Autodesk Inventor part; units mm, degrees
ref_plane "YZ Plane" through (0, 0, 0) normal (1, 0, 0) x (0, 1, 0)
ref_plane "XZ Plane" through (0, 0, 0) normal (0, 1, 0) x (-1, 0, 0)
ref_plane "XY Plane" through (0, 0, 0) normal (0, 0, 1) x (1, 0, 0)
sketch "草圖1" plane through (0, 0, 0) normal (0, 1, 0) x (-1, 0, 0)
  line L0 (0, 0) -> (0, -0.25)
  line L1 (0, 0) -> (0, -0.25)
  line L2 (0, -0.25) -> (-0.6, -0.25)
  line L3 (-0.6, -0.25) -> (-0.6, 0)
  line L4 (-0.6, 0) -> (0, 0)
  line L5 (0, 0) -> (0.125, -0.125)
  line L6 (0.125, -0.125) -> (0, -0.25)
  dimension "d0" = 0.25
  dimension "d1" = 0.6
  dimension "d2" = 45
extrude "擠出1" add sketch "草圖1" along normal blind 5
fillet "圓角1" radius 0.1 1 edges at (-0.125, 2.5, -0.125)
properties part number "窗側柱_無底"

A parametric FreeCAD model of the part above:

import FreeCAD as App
import Part
import Sketcher
from FreeCAD import Vector


def edges_at(feature, points):
    """Names of the edges that pass closest to the given points."""
    edges = feature.Shape.Edges
    near = lambda p: min(range(len(edges)), key=lambda i: edges[i].distToShape(Part.Vertex(*p))[0])
    return sorted({f"Edge{near(p) + 1}" for p in points})


def add_polygon(sketch, points):
    """Adds a closed chain of lines whose ends are joined by coincident constraints."""
    first, n = sketch.GeometryCount, len(points)
    for a, b in zip(points, points[1:] + points[:1]):
        sketch.addGeometry(Part.LineSegment(App.Vector(*a, 0), App.Vector(*b, 0)), False)
    for i in range(n):
        sketch.addConstraint(Sketcher.Constraint("Coincident", first + i, 2, first + (i + 1) % n, 1))

doc = App.newDocument("Part")
params = doc.addObject("Spreadsheet::Sheet", "Params")
for row, (alias, value) in enumerate([
    ("sketch1_width", "0.6 mm"),
    ("sketch1_height", "0.25 mm"),
    ("pad1_length", "5 mm"),
    ("fillet_radius", "0.1 mm"),
], start=1):
    params.set(f"A{row}", alias)
    params.set(f"B{row}", "=" + value)
    params.setAlias(f"B{row}", alias)

body = doc.addObject("PartDesign::Body", "Body")

sketch1 = body.newObject("Sketcher::SketchObject", "Sketch")
sketch1.AttachmentSupport = (doc.getObject("XZ_Plane"), [""])
sketch1.MapMode = "FlatFace"
add_polygon(sketch1, [(-0.12, -0.12), (0, 0), (0.6, 0), (0.6, -0.25), (0, -0.25)])
sketch1.addConstraint([
    Sketcher.Constraint("Horizontal", 1),
    Sketcher.Constraint("Vertical", 2),
    Sketcher.Constraint("Horizontal", 3),
    Sketcher.Constraint("Coincident", 0, 2, -1, 1),
    Sketcher.Constraint("PointOnObject", 3, 2, -2),
    Sketcher.Constraint("Perpendicular", 0, 4),
    Sketcher.Constraint("Equal", 0, 4),
    Sketcher.Constraint("DistanceX", 1, 1, 1, 2, 0.6),
    Sketcher.Constraint("DistanceY", 2, 2, 2, 1, 0.25),
])
sketch1.setExpression("Constraints[12]", "Params.sketch1_width")
sketch1.setExpression("Constraints[13]", "Params.sketch1_height")
pad1 = body.newObject("PartDesign::Pad", "Pad")
pad1.Profile = sketch1
pad1.setExpression("Length", "Params.pad1_length")
pad1.Reversed = True
doc.recompute()

fillet = body.newObject("PartDesign::Fillet", "Fillet")
fillet.Base = (pad1, edges_at(pad1, [(-0.125, 2.5, -0.125)]))
fillet.setExpression("Radius", "Params.fillet_radius")

doc.recompute()
